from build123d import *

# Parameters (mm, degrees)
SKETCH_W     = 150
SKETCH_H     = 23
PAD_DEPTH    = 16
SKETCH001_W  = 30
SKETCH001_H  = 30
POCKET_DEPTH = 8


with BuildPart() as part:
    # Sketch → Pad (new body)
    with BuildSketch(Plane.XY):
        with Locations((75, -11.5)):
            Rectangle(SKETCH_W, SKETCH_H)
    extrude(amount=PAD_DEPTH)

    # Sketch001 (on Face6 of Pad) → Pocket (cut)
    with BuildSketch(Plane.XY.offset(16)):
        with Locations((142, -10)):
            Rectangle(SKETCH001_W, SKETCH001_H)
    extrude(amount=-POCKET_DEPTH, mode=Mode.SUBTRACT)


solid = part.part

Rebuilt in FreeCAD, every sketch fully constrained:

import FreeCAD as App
import Part
import Sketcher

V = App.Vector
Q = App.Units.Quantity

doc = App.newDocument("Part")
body = doc.addObject("PartDesign::Body", "Body")

# Sketch on XY plane
sketch1 = doc.addObject("Sketcher::SketchObject", "Sketch")
body.addObject(sketch1)
sketch1.AttachmentSupport = (doc.XY_Plane, [""])
sketch1.MapMode = "FlatFace"
sketch1.addGeometry([
    Part.LineSegment(V(0, 0, 0), V(0, -23, 0)),
    Part.LineSegment(V(0, -23, 0), V(150, -23, 0)),
    Part.LineSegment(V(150, -23, 0), V(150, 0, 0)),
    Part.LineSegment(V(150, 0, 0), V(0, 0, 0)),
], False)
sketch1.addConstraint([
    Sketcher.Constraint("Coincident", 0, 2, 1, 1),
    Sketcher.Constraint("Coincident", 1, 2, 2, 1),
    Sketcher.Constraint("Coincident", 2, 2, 3, 1),
    Sketcher.Constraint("Coincident", 3, 2, 0, 1),
    Sketcher.Constraint("Vertical", 0),
    Sketcher.Constraint("Horizontal", 1),
    Sketcher.Constraint("Vertical", 2),
    Sketcher.Constraint("Horizontal", 3),
    Sketcher.Constraint("Coincident", 3, 2, -1, 1),
    Sketcher.Constraint("DistanceX", 1, 1, 1, 2, Q("150 mm")),
    Sketcher.Constraint("DistanceY", 0, 2, 0, 1, Q("23 mm")),
])
pad1 = doc.addObject("PartDesign::Pad", "Pad")
body.addObject(pad1)
pad1.Profile = sketch1
pad1.Length = 16

# Sketch on XY plane
sketch2 = doc.addObject("Sketcher::SketchObject", "Sketch001")
body.addObject(sketch2)
sketch2.AttachmentSupport = (doc.XY_Plane, [""])
sketch2.MapMode = "FlatFace"
sketch2.AttachmentOffset = App.Placement(V(0, 0, 16), App.Rotation())
sketch2.addGeometry([
    Part.LineSegment(V(127, 5, 0), V(127, -25, 0)),
    Part.LineSegment(V(127, -25, 0), V(157, -25, 0)),
    Part.LineSegment(V(157, -25, 0), V(157, 5, 0)),
    Part.LineSegment(V(157, 5, 0), V(127, 5, 0)),
], False)
sketch2.addConstraint([
    Sketcher.Constraint("Coincident", 0, 2, 1, 1),
    Sketcher.Constraint("Coincident", 1, 2, 2, 1),
    Sketcher.Constraint("Coincident", 2, 2, 3, 1),
    Sketcher.Constraint("Coincident", 3, 2, 0, 1),
    Sketcher.Constraint("Vertical", 0),
    Sketcher.Constraint("Horizontal", 1),
    Sketcher.Constraint("Vertical", 2),
    Sketcher.Constraint("Horizontal", 3),
    Sketcher.Constraint("Equal", 3, 0),
    Sketcher.Constraint("DistanceX", 1, 1, 1, 2, Q("30 mm")),
    Sketcher.Constraint("DistanceX", -1, 1, 0, 2, Q("127 mm")),
    Sketcher.Constraint("DistanceY", 0, 2, -1, 1, Q("25 mm")),
])
pocket1 = doc.addObject("PartDesign::Pocket", "Pocket")
body.addObject(pocket1)
pocket1.Profile = sketch2
pocket1.Length = 8

doc.recompute()
